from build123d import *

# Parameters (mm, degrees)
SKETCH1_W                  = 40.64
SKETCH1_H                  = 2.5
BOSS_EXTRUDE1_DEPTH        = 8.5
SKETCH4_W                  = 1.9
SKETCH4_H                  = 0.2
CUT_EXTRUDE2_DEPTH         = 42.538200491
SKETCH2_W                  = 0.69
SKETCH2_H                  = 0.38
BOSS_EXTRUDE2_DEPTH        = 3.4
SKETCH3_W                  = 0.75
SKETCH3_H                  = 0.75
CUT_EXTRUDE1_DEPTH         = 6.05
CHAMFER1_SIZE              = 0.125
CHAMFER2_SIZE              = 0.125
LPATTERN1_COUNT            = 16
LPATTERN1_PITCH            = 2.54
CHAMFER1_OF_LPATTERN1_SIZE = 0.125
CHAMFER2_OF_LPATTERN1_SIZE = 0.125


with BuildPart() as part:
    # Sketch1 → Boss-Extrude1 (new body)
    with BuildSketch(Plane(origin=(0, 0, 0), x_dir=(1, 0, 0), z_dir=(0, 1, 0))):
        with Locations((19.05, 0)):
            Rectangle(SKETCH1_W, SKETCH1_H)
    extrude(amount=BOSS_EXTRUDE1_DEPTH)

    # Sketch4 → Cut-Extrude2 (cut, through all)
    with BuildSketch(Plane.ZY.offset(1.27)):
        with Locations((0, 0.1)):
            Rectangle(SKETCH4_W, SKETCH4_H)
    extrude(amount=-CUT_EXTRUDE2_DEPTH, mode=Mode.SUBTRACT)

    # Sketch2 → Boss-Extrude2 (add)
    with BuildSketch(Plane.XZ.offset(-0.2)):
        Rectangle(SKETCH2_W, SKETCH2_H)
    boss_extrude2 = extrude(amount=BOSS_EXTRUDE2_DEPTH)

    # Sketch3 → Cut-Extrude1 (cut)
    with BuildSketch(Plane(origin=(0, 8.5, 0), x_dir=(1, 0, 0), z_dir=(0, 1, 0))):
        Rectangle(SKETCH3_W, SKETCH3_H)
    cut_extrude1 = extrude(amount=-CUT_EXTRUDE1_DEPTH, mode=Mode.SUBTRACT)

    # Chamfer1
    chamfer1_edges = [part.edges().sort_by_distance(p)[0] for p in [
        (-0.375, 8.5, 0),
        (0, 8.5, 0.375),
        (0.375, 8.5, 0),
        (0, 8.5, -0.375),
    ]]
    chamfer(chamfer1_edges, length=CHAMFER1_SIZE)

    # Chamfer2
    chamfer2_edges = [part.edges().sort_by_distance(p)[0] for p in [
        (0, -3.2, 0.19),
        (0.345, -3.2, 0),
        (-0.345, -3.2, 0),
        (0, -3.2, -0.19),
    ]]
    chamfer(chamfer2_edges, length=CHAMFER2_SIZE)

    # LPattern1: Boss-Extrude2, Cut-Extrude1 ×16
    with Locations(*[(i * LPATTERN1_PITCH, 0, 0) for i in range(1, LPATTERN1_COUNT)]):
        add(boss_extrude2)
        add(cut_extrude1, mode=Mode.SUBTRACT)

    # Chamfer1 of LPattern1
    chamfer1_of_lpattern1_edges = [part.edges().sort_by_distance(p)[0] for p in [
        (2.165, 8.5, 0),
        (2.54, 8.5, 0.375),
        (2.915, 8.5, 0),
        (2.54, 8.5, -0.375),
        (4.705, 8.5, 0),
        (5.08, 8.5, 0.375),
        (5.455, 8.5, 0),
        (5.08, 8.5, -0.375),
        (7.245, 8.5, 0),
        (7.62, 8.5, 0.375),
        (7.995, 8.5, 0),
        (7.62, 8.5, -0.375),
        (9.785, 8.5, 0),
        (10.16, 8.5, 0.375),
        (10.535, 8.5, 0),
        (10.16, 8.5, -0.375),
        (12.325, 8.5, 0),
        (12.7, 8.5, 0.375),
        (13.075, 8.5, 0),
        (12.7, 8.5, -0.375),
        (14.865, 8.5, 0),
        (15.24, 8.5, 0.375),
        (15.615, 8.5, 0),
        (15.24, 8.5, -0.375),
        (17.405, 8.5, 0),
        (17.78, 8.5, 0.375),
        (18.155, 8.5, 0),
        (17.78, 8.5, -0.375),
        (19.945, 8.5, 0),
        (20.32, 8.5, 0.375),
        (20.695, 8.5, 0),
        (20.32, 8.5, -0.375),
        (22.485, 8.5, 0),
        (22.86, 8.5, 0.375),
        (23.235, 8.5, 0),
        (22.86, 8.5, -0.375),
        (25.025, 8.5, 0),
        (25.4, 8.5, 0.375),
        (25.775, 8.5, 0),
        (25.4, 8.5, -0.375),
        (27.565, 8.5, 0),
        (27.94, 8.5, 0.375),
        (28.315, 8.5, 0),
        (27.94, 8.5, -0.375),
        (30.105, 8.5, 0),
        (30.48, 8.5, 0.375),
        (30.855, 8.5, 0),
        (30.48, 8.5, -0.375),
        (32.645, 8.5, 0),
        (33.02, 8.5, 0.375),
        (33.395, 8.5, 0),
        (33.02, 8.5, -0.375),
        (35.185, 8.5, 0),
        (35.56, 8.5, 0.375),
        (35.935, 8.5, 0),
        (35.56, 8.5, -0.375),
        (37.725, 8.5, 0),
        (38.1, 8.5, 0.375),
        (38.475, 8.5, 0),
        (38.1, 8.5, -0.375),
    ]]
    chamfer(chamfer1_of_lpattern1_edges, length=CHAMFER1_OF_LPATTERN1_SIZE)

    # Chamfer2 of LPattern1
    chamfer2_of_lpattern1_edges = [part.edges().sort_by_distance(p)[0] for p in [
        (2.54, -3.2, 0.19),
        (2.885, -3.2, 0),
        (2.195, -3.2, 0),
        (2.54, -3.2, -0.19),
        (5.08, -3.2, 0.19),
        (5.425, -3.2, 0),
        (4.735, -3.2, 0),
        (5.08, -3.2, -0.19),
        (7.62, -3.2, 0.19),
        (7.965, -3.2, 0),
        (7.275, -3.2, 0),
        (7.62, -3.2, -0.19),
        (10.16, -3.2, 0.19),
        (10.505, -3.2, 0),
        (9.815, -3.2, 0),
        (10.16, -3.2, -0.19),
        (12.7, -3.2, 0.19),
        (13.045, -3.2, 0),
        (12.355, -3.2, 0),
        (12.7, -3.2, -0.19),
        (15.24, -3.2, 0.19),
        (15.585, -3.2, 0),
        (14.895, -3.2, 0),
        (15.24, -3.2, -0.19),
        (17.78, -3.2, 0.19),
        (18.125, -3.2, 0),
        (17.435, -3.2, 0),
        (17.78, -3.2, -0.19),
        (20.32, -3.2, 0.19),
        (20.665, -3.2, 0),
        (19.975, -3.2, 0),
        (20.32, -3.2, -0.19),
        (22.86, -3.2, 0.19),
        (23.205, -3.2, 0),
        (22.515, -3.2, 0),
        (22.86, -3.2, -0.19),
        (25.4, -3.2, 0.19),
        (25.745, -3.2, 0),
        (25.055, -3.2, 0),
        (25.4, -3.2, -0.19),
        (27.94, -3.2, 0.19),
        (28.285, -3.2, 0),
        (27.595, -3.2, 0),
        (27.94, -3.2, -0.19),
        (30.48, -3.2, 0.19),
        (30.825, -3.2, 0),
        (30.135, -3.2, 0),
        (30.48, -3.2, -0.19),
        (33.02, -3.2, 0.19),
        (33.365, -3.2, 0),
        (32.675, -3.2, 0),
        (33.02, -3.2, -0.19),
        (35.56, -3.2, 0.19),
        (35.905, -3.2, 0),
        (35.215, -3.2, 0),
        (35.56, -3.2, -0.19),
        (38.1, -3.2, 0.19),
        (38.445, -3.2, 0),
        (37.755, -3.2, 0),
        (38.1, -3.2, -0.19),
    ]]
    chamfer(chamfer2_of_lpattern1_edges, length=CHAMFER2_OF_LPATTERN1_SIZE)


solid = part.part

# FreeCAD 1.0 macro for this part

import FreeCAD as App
import Part
import Sketcher

V = App.Vector
Q = App.Units.Quantity


def edges_at(feature, points):
    """Names of the edges that pass closest to the given points."""
    edges = feature.Shape.Edges
    near = lambda p: min(range(len(edges)), key=lambda i: edges[i].distToShape(Part.Vertex(*p))[0])
    return sorted({f"Edge{near(p) + 1}" for p in points})

doc = App.newDocument("Part")
body = doc.addObject("PartDesign::Body", "Body")

# Sketch on XZ plane
sketch1 = body.newObject("Sketcher::SketchObject", "Sketch")
sketch1.AttachmentSupport = (doc.getObject("XZ_Plane"), [""])
sketch1.MapMode = "FlatFace"
sketch1.addGeometry([
    Part.LineSegment(V(-1.3, -1.2, 0), V(-1.3, 1.2, 0)),
    Part.LineSegment(V(-1.3, 1.2, 0), V(39.4, 1.2, 0)),
    Part.LineSegment(V(39.4, 1.2, 0), V(39.4, -1.2, 0)),
    Part.LineSegment(V(39.4, -1.2, 0), V(-1.3, -1.2, 0)),
], False)
sketch1.addConstraint([
    Sketcher.Constraint("Coincident", 0, 2, 1, 1),
    Sketcher.Constraint("Coincident", 1, 2, 2, 1),
    Sketcher.Constraint("Coincident", 2, 2, 3, 1),
    Sketcher.Constraint("Coincident", 3, 2, 0, 1),
    Sketcher.Constraint("Vertical", 0),
    Sketcher.Constraint("Horizontal", 1),
    Sketcher.Constraint("Vertical", 2),
    Sketcher.Constraint("Horizontal", 3),
    Sketcher.Constraint("DistanceY", 0, 1, 0, 2, Q("2.5 mm")),
    Sketcher.Constraint("DistanceX", 1, 1, 1, 2, Q("40.64 mm")),
    Sketcher.Constraint("DistanceX", 0, 2, -1, 1, Q("1.27 mm")),
    Sketcher.Constraint("DistanceY", -1, 1, 0, 2, Q("1.25 mm")),
])
pad1 = body.newObject("PartDesign::Pad", "Pad")
pad1.Profile = sketch1
pad1.Length = 8.5
pad1.Reversed = True

# Sketch on YZ plane
sketch2 = body.newObject("Sketcher::SketchObject", "Sketch001")
sketch2.AttachmentSupport = (doc.getObject("YZ_Plane"), [""])
sketch2.MapMode = "FlatFace"
sketch2.AttachmentOffset = App.Placement(V(0, 0, -1.27), App.Rotation())
sketch2.addGeometry([
    Part.LineSegment(V(0.2, -0.95, 0), V(0, -0.95, 0)),
    Part.LineSegment(V(0, -0.95, 0), V(0, 0.95, 0)),
    Part.LineSegment(V(0, 0.95, 0), V(0.2, 0.95, 0)),
    Part.LineSegment(V(0.2, 0.95, 0), V(0.2, -0.95, 0)),
], False)
sketch2.addConstraint([
    Sketcher.Constraint("Coincident", 0, 2, 1, 1),
    Sketcher.Constraint("Coincident", 1, 2, 2, 1),
    Sketcher.Constraint("Coincident", 2, 2, 3, 1),
    Sketcher.Constraint("Coincident", 3, 2, 0, 1),
    Sketcher.Constraint("Horizontal", 0),
    Sketcher.Constraint("Vertical", 1),
    Sketcher.Constraint("Horizontal", 2),
    Sketcher.Constraint("Vertical", 3),
    Sketcher.Constraint("Symmetric", 0, 2, 1, 2, -1, 1),
    Sketcher.Constraint("DistanceX", 0, 2, 0, 1, Q("0.2 mm")),
    Sketcher.Constraint("DistanceY", 1, 1, 1, 2, Q("1.9 mm")),
])
pocket1 = body.newObject("PartDesign::Pocket", "Pocket")
pocket1.Profile = sketch2
pocket1.Type = "ThroughAll"
pocket1.Reversed = True

# Sketch on XZ plane
sketch3 = body.newObject("Sketcher::SketchObject", "Sketch002")
sketch3.AttachmentSupport = (doc.getObject("XZ_Plane"), [""])
sketch3.MapMode = "FlatFace"
sketch3.AttachmentOffset = App.Placement(V(0, 0, -0.2), App.Rotation())
sketch3.addGeometry([
    Part.LineSegment(V(-0.34, 0.19, 0), V(-0.34, -0.19, 0)),
    Part.LineSegment(V(-0.34, -0.19, 0), V(0.34, -0.19, 0)),
    Part.LineSegment(V(0.34, -0.19, 0), V(0.34, 0.19, 0)),
    Part.LineSegment(V(0.34, 0.19, 0), V(-0.34, 0.19, 0)),
], False)
sketch3.addConstraint([
    Sketcher.Constraint("Coincident", 0, 2, 1, 1),
    Sketcher.Constraint("Coincident", 1, 2, 2, 1),
    Sketcher.Constraint("Coincident", 2, 2, 3, 1),
    Sketcher.Constraint("Coincident", 3, 2, 0, 1),
    Sketcher.Constraint("Vertical", 0),
    Sketcher.Constraint("Horizontal", 1),
    Sketcher.Constraint("Vertical", 2),
    Sketcher.Constraint("Horizontal", 3),
    Sketcher.Constraint("Symmetric", 0, 2, 2, 2, -1, 1),
    Sketcher.Constraint("DistanceX", 1, 1, 1, 2, Q("0.69 mm")),
    Sketcher.Constraint("DistanceY", 0, 2, 0, 1, Q("0.38 mm")),
])
pad2 = body.newObject("PartDesign::Pad", "Pad001")
pad2.Profile = sketch3
pad2.Length = 3.4

# Sketch on XZ plane
sketch4 = body.newObject("Sketcher::SketchObject", "Sketch003")
sketch4.AttachmentSupport = (doc.getObject("XZ_Plane"), [""])
sketch4.MapMode = "FlatFace"
sketch4.AttachmentOffset = App.Placement(V(0, 0, -8.5), App.Rotation())
sketch4.addGeometry([
    Part.LineSegment(V(-0.4, -0.4, 0), V(-0.4, 0.4, 0)),
    Part.LineSegment(V(-0.4, 0.4, 0), V(0.4, 0.4, 0)),
    Part.LineSegment(V(0.4, 0.4, 0), V(0.4, -0.4, 0)),
    Part.LineSegment(V(0.4, -0.4, 0), V(-0.4, -0.4, 0)),
], False)
sketch4.addConstraint([
    Sketcher.Constraint("Coincident", 0, 2, 1, 1),
    Sketcher.Constraint("Coincident", 1, 2, 2, 1),
    Sketcher.Constraint("Coincident", 2, 2, 3, 1),
    Sketcher.Constraint("Coincident", 3, 2, 0, 1),
    Sketcher.Constraint("Vertical", 0),
    Sketcher.Constraint("Horizontal", 1),
    Sketcher.Constraint("Vertical", 2),
    Sketcher.Constraint("Horizontal", 3),
    Sketcher.Constraint("Symmetric", 0, 2, 2, 2, -1, 1),
    Sketcher.Constraint("Equal", 3, 0),
    Sketcher.Constraint("DistanceX", 1, 1, 1, 2, Q("0.75 mm")),
])
pocket2 = body.newObject("PartDesign::Pocket", "Pocket001")
pocket2.Profile = sketch4
pocket2.Length = 6.05
pocket2.Reversed = True
doc.recompute()

chamfer = body.newObject("PartDesign::Chamfer", "Chamfer")
chamfer.Base = (pocket2, edges_at(pocket2, [
    (-0.375, 8.5, 0),
    (0, 8.5, 0.375),
    (0.375, 8.5, 0),
    (0, 8.5, -0.375),
]))
chamfer.Size = 0.125
doc.recompute()

chamfer2 = body.newObject("PartDesign::Chamfer", "Chamfer001")
chamfer2.Base = (chamfer, edges_at(chamfer, [
    (0, -3.2, 0.19),
    (0.345, -3.2, 0),
    (-0.345, -3.2, 0),
    (0, -3.2, -0.19),
]))
chamfer2.Size = 0.125
doc.recompute()

linearpattern = body.newObject("PartDesign::LinearPattern", "LinearPattern")
linearpattern.Originals = [pad2, pocket2]
linearpattern.Direction = (doc.getObject("X_Axis"), [""])
linearpattern.Mode = "offset"
linearpattern.Offset = 2.54
linearpattern.Occurrences = 16
body.Tip = linearpattern
doc.recompute()

chamfer3 = body.newObject("PartDesign::Chamfer", "Chamfer002")
chamfer3.Base = (linearpattern, edges_at(linearpattern, [
    (2.165, 8.5, 0),
    (2.54, 8.5, 0.375),
    (2.915, 8.5, 0),
    (2.54, 8.5, -0.375),
    (4.705, 8.5, 0),
    (5.08, 8.5, 0.375),
    (5.455, 8.5, 0),
    (5.08, 8.5, -0.375),
    (7.245, 8.5, 0),
    (7.62, 8.5, 0.375),
    (7.995, 8.5, 0),
    (7.62, 8.5, -0.375),
    (9.785, 8.5, 0),
    (10.16, 8.5, 0.375),
    (10.535, 8.5, 0),
    (10.16, 8.5, -0.375),
    (12.325, 8.5, 0),
    (12.7, 8.5, 0.375),
    (13.075, 8.5, 0),
    (12.7, 8.5, -0.375),
    (14.865, 8.5, 0),
    (15.24, 8.5, 0.375),
    (15.615, 8.5, 0),
    (15.24, 8.5, -0.375),
    (17.405, 8.5, 0),
    (17.78, 8.5, 0.375),
    (18.155, 8.5, 0),
    (17.78, 8.5, -0.375),
    (19.945, 8.5, 0),
    (20.32, 8.5, 0.375),
    (20.695, 8.5, 0),
    (20.32, 8.5, -0.375),
    (22.485, 8.5, 0),
    (22.86, 8.5, 0.375),
    (23.235, 8.5, 0),
    (22.86, 8.5, -0.375),
    (25.025, 8.5, 0),
    (25.4, 8.5, 0.375),
    (25.775, 8.5, 0),
    (25.4, 8.5, -0.375),
    (27.565, 8.5, 0),
    (27.94, 8.5, 0.375),
    (28.315, 8.5, 0),
    (27.94, 8.5, -0.375),
    (30.105, 8.5, 0),
    (30.48, 8.5, 0.375),
    (30.855, 8.5, 0),
    (30.48, 8.5, -0.375),
    (32.645, 8.5, 0),
    (33.02, 8.5, 0.375),
    (33.395, 8.5, 0),
    (33.02, 8.5, -0.375),
    (35.185, 8.5, 0),
    (35.56, 8.5, 0.375),
    (35.935, 8.5, 0),
    (35.56, 8.5, -0.375),
    (37.725, 8.5, 0),
    (38.1, 8.5, 0.375),
    (38.475, 8.5, 0),
    (38.1, 8.5, -0.375),
]))
chamfer3.Size = 0.125
doc.recompute()

chamfer4 = body.newObject("PartDesign::Chamfer", "Chamfer003")
chamfer4.Base = (chamfer3, edges_at(chamfer3, [
    (2.54, -3.2, 0.19),
    (2.885, -3.2, 0),
    (2.195, -3.2, 0),
    (2.54, -3.2, -0.19),
    (5.08, -3.2, 0.19),
    (5.425, -3.2, 0),
    (4.735, -3.2, 0),
    (5.08, -3.2, -0.19),
    (7.62, -3.2, 0.19),
    (7.965, -3.2, 0),
    (7.275, -3.2, 0),
    (7.62, -3.2, -0.19),
    (10.16, -3.2, 0.19),
    (10.505, -3.2, 0),
    (9.815, -3.2, 0),
    (10.16, -3.2, -0.19),
    (12.7, -3.2, 0.19),
    (13.045, -3.2, 0),
    (12.355, -3.2, 0),
    (12.7, -3.2, -0.19),
    (15.24, -3.2, 0.19),
    (15.585, -3.2, 0),
    (14.895, -3.2, 0),
    (15.24, -3.2, -0.19),
    (17.78, -3.2, 0.19),
    (18.125, -3.2, 0),
    (17.435, -3.2, 0),
    (17.78, -3.2, -0.19),
    (20.32, -3.2, 0.19),
    (20.665, -3.2, 0),
    (19.975, -3.2, 0),
    (20.32, -3.2, -0.19),
    (22.86, -3.2, 0.19),
    (23.205, -3.2, 0),
    (22.515, -3.2, 0),
    (22.86, -3.2, -0.19),
    (25.4, -3.2, 0.19),
    (25.745, -3.2, 0),
    (25.055, -3.2, 0),
    (25.4, -3.2, -0.19),
    (27.94, -3.2, 0.19),
    (28.285, -3.2, 0),
    (27.595, -3.2, 0),
    (27.94, -3.2, -0.19),
    (30.48, -3.2, 0.19),
    (30.825, -3.2, 0),
    (30.135, -3.2, 0),
    (30.48, -3.2, -0.19),
    (33.02, -3.2, 0.19),
    (33.365, -3.2, 0),
    (32.675, -3.2, 0),
    (33.02, -3.2, -0.19),
    (35.56, -3.2, 0.19),
    (35.905, -3.2, 0),
    (35.215, -3.2, 0),
    (35.56, -3.2, -0.19),
    (38.1, -3.2, 0.19),
    (38.445, -3.2, 0),
    (37.755, -3.2, 0),
    (38.1, -3.2, -0.19),
]))
chamfer4.Size = 0.125

doc.recompute()
